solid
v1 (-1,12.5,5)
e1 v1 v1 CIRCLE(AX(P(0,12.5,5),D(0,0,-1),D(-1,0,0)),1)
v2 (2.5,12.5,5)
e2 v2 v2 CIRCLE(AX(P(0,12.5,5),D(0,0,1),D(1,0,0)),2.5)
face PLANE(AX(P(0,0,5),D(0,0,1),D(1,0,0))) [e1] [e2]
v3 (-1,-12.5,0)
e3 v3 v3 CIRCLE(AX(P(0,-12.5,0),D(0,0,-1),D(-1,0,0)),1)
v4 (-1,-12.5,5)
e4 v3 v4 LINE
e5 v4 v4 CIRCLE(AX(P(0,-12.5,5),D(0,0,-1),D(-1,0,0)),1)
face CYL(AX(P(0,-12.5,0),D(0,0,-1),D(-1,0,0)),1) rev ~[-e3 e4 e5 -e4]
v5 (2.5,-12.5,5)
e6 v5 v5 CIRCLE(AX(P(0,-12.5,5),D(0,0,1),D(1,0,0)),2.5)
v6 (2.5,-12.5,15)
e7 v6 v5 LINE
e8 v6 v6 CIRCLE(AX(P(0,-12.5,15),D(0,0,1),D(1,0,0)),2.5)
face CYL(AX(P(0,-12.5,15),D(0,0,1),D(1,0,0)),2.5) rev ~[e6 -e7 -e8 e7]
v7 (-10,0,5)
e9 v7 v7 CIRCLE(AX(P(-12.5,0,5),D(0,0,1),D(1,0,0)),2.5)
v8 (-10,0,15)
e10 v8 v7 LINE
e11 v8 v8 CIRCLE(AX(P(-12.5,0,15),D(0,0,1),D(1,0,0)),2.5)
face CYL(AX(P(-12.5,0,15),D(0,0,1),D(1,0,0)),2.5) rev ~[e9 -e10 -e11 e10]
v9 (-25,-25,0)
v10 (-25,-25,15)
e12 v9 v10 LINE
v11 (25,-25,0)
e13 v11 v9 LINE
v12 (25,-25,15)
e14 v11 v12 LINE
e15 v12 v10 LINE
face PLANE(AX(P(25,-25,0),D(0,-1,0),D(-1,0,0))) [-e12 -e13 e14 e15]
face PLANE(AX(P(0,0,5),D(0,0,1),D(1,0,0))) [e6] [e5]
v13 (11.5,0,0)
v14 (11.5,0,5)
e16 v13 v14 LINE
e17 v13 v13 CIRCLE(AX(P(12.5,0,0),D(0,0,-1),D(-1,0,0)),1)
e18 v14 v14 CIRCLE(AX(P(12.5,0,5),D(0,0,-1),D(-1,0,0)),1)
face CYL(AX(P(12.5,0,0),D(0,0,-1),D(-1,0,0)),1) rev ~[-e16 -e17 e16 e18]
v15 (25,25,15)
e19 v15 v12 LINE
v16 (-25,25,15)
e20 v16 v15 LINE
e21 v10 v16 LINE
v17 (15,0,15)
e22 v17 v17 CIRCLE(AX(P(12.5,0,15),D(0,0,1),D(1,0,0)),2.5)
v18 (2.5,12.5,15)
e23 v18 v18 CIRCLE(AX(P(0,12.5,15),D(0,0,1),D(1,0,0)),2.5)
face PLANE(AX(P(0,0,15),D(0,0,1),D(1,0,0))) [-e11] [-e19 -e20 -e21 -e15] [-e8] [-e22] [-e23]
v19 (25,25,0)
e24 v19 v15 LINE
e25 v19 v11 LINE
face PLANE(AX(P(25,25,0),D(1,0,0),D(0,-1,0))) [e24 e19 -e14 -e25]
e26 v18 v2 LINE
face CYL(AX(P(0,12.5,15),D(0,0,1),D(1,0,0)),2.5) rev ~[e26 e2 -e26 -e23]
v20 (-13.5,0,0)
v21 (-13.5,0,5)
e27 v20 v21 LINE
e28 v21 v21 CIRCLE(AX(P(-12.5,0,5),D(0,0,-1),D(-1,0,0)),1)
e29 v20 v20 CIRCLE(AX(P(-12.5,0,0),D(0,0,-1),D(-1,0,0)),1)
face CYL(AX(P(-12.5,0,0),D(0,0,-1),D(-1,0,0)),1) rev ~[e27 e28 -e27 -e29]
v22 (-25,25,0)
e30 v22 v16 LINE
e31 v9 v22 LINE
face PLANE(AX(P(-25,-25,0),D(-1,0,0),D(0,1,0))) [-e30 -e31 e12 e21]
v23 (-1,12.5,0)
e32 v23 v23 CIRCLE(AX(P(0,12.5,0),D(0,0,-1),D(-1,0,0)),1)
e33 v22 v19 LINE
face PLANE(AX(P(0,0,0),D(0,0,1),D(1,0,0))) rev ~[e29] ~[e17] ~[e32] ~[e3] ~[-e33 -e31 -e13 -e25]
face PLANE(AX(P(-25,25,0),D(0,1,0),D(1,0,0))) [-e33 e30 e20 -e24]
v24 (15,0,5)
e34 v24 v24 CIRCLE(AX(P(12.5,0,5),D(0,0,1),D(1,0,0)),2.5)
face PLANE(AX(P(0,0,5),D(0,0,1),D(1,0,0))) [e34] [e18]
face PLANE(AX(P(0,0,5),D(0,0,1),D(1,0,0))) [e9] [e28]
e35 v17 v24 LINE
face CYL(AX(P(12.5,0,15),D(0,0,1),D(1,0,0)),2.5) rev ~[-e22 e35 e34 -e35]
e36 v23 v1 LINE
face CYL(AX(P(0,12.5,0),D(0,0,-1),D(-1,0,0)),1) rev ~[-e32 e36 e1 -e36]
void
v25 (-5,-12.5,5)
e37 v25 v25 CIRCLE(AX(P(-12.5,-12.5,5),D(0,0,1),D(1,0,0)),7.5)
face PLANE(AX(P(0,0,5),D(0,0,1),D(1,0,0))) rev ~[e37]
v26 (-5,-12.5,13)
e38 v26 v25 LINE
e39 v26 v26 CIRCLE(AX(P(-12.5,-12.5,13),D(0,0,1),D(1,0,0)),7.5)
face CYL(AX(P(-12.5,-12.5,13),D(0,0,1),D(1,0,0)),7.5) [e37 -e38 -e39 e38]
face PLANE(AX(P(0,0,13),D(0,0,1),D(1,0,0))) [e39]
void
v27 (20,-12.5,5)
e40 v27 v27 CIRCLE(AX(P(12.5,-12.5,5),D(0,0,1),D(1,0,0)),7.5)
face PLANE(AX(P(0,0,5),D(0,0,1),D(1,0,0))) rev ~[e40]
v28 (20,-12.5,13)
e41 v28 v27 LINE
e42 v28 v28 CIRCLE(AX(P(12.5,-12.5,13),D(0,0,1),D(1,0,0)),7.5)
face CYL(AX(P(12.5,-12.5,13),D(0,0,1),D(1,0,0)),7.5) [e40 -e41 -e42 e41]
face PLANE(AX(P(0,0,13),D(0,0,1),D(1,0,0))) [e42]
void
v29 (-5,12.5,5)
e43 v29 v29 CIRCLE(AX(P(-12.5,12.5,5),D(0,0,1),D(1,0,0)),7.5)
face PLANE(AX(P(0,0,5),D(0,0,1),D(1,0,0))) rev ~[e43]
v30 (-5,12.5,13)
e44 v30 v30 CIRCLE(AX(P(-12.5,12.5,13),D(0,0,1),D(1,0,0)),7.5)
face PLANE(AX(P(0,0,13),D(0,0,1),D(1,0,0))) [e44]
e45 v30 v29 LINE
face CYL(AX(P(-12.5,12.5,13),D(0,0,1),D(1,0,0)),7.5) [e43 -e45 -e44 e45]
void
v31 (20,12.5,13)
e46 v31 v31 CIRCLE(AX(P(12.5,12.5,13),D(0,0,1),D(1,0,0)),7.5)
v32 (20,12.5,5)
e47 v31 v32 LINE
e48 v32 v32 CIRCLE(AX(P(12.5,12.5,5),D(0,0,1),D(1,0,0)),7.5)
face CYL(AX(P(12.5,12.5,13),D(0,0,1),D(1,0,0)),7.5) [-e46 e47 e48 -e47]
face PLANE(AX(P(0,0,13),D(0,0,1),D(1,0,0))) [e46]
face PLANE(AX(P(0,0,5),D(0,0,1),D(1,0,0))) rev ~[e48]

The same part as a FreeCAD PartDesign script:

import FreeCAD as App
import Part
import Sketcher

V = App.Vector


def add_polygon(sketch, points):
    """Adds a closed chain of lines whose ends are joined by coincident constraints."""
    first, n = sketch.GeometryCount, len(points)
    for a, b in zip(points, points[1:] + points[:1]):
        sketch.addGeometry(Part.LineSegment(App.Vector(*a, 0), App.Vector(*b, 0)), False)
    for i in range(n):
        sketch.addConstraint(Sketcher.Constraint("Coincident", first + i, 2, first + (i + 1) % n, 1))

doc = App.newDocument("Part")
body = doc.addObject("PartDesign::Body", "Body")

sketch1 = body.newObject("Sketcher::SketchObject", "Sketch")
sketch1.AttachmentSupport = (doc.getObject("XY_Plane"), [""])
sketch1.MapMode = "FlatFace"
add_polygon(sketch1, [(25, 25), (-25, 25), (-25, -25), (25, -25)])
sketch1.addConstraint(Sketcher.Constraint("Horizontal", 0))
sketch1.addConstraint(Sketcher.Constraint("Vertical", 1))
sketch1.addConstraint(Sketcher.Constraint("Horizontal", 2))
sketch1.addConstraint(Sketcher.Constraint("Vertical", 3))
sketch1.addConstraint(Sketcher.Constraint("Symmetric", 0, 2, 2, 2, -1, 1))
sketch1.addConstraint(Sketcher.Constraint("Equal", 2, 1))
sketch1.addConstraint(Sketcher.Constraint("DistanceX", 0, 2, 0, 1, 50.0))
pad1 = body.newObject("PartDesign::Pad", "Pad")
pad1.Profile = sketch1
pad1.Length = 15

sketch2 = body.newObject("Sketcher::SketchObject", "Sketch001")
sketch2.AttachmentSupport = (doc.getObject("XY_Plane"), [""])
sketch2.MapMode = "FlatFace"
sketch2.AttachmentOffset = App.Placement(V(0, 0, 13), App.Rotation())
sketch2.addGeometry(Part.Circle(V(-12, -12, 0), V(0, 0, 1), 8), False)
sketch2.addGeometry(Part.Circle(V(12, -12, 0), V(0, 0, 1), 8), False)
sketch2.addGeometry(Part.Circle(V(-12, 12, 0), V(0, 0, 1), 8), False)
sketch2.addGeometry(Part.Circle(V(12, 12, 0), V(0, 0, 1), 8), False)
sketch2.addConstraint(Sketcher.Constraint("Equal", 0, 1))
sketch2.addConstraint(Sketcher.Constraint("Equal", 1, 2))
sketch2.addConstraint(Sketcher.Constraint("Equal", 2, 3))
sketch2.addConstraint(Sketcher.Constraint("Symmetric", 1, 3, 2, 3, -1, 1))
sketch2.addConstraint(Sketcher.Constraint("Symmetric", 0, 3, 3, 3, -1, 1))
sketch2.addConstraint(Sketcher.Constraint("Symmetric", 0, 3, 1, 3, -2))
sketch2.addConstraint(Sketcher.Constraint("Diameter", 0, 15.0))
sketch2.addConstraint(Sketcher.Constraint("DistanceX", 0, 3, -1, 1, 12.5))
sketch2.addConstraint(Sketcher.Constraint("DistanceY", 0, 3, -1, 1, 12.5))
pocket1 = body.newObject("PartDesign::Pocket", "Pocket")
pocket1.Profile = sketch2
pocket1.Length = 8

sketch3 = body.newObject("Sketcher::SketchObject", "Sketch002")
sketch3.AttachmentSupport = (doc.getObject("XY_Plane"), [""])
sketch3.MapMode = "FlatFace"
sketch3.AttachmentOffset = App.Placement(V(0, 0, 15), App.Rotation())
sketch3.addGeometry(Part.Circle(V(-12.5, 0, 0), V(0, 0, 1), 2.5), False)
sketch3.addGeometry(Part.Circle(V(0, 12.5, 0), V(0, 0, 1), 2.5), False)
sketch3.addGeometry(Part.Circle(V(12.5, 0, 0), V(0, 0, 1), 2.5), False)
sketch3.addGeometry(Part.Circle(V(0, -12.5, 0), V(0, 0, 1), 2.5), False)
sketch3.addConstraint(Sketcher.Constraint("Equal", 0, 1))
sketch3.addConstraint(Sketcher.Constraint("Equal", 1, 2))
sketch3.addConstraint(Sketcher.Constraint("Equal", 2, 3))
sketch3.addConstraint(Sketcher.Constraint("Symmetric", 0, 3, 2, 3, -1, 1))
sketch3.addConstraint(Sketcher.Constraint("Symmetric", 1, 3, 3, 3, -1, 1))
sketch3.addConstraint(Sketcher.Constraint("PointOnObject", 0, 3, -1))
sketch3.addConstraint(Sketcher.Constraint("PointOnObject", 1, 3, -2))
sketch3.addConstraint(Sketcher.Constraint("Diameter", 0, 5.0))
sketch3.addConstraint(Sketcher.Constraint("DistanceX", 0, 3, 2, 3, 25.0))
sketch3.addConstraint(Sketcher.Constraint("DistanceY", 3, 3, 1, 3, 25.0))
pocket2 = body.newObject("PartDesign::Pocket", "Pocket001")
pocket2.Profile = sketch3
pocket2.Length = 10

sketch4 = body.newObject("Sketcher::SketchObject", "Sketch003")
sketch4.AttachmentSupport = (doc.getObject("XY_Plane"), [""])
sketch4.MapMode = "FlatFace"
sketch4.addGeometry(Part.Circle(V(0, 12.5, 0), V(0, 0, 1), 1), False)
sketch4.addGeometry(Part.Circle(V(0, -12.5, 0), V(0, 0, 1), 1), False)
sketch4.addGeometry(Part.Circle(V(12.5, 0, 0), V(0, 0, 1), 1), False)
sketch4.addGeometry(Part.Circle(V(-12.5, 0, 0), V(0, 0, 1), 1), False)
sketch4.addConstraint(Sketcher.Constraint("Equal", 0, 1))
sketch4.addConstraint(Sketcher.Constraint("Equal", 1, 2))
sketch4.addConstraint(Sketcher.Constraint("Equal", 2, 3))
sketch4.addConstraint(Sketcher.Constraint("Symmetric", 0, 3, 1, 3, -1, 1))
sketch4.addConstraint(Sketcher.Constraint("Symmetric", 2, 3, 3, 3, -1, 1))
sketch4.addConstraint(Sketcher.Constraint("PointOnObject", 0, 3, -2))
sketch4.addConstraint(Sketcher.Constraint("PointOnObject", 2, 3, -1))
sketch4.addConstraint(Sketcher.Constraint("Diameter", 0, 2.0))
sketch4.addConstraint(Sketcher.Constraint("DistanceY", 1, 3, 0, 3, 25.0))
sketch4.addConstraint(Sketcher.Constraint("DistanceX", 3, 3, 2, 3, 25.0))
pocket3 = body.newObject("PartDesign::Pocket", "Pocket002")
pocket3.Profile = sketch4
pocket3.Length = 10
pocket3.Reversed = True

doc.recompute()
